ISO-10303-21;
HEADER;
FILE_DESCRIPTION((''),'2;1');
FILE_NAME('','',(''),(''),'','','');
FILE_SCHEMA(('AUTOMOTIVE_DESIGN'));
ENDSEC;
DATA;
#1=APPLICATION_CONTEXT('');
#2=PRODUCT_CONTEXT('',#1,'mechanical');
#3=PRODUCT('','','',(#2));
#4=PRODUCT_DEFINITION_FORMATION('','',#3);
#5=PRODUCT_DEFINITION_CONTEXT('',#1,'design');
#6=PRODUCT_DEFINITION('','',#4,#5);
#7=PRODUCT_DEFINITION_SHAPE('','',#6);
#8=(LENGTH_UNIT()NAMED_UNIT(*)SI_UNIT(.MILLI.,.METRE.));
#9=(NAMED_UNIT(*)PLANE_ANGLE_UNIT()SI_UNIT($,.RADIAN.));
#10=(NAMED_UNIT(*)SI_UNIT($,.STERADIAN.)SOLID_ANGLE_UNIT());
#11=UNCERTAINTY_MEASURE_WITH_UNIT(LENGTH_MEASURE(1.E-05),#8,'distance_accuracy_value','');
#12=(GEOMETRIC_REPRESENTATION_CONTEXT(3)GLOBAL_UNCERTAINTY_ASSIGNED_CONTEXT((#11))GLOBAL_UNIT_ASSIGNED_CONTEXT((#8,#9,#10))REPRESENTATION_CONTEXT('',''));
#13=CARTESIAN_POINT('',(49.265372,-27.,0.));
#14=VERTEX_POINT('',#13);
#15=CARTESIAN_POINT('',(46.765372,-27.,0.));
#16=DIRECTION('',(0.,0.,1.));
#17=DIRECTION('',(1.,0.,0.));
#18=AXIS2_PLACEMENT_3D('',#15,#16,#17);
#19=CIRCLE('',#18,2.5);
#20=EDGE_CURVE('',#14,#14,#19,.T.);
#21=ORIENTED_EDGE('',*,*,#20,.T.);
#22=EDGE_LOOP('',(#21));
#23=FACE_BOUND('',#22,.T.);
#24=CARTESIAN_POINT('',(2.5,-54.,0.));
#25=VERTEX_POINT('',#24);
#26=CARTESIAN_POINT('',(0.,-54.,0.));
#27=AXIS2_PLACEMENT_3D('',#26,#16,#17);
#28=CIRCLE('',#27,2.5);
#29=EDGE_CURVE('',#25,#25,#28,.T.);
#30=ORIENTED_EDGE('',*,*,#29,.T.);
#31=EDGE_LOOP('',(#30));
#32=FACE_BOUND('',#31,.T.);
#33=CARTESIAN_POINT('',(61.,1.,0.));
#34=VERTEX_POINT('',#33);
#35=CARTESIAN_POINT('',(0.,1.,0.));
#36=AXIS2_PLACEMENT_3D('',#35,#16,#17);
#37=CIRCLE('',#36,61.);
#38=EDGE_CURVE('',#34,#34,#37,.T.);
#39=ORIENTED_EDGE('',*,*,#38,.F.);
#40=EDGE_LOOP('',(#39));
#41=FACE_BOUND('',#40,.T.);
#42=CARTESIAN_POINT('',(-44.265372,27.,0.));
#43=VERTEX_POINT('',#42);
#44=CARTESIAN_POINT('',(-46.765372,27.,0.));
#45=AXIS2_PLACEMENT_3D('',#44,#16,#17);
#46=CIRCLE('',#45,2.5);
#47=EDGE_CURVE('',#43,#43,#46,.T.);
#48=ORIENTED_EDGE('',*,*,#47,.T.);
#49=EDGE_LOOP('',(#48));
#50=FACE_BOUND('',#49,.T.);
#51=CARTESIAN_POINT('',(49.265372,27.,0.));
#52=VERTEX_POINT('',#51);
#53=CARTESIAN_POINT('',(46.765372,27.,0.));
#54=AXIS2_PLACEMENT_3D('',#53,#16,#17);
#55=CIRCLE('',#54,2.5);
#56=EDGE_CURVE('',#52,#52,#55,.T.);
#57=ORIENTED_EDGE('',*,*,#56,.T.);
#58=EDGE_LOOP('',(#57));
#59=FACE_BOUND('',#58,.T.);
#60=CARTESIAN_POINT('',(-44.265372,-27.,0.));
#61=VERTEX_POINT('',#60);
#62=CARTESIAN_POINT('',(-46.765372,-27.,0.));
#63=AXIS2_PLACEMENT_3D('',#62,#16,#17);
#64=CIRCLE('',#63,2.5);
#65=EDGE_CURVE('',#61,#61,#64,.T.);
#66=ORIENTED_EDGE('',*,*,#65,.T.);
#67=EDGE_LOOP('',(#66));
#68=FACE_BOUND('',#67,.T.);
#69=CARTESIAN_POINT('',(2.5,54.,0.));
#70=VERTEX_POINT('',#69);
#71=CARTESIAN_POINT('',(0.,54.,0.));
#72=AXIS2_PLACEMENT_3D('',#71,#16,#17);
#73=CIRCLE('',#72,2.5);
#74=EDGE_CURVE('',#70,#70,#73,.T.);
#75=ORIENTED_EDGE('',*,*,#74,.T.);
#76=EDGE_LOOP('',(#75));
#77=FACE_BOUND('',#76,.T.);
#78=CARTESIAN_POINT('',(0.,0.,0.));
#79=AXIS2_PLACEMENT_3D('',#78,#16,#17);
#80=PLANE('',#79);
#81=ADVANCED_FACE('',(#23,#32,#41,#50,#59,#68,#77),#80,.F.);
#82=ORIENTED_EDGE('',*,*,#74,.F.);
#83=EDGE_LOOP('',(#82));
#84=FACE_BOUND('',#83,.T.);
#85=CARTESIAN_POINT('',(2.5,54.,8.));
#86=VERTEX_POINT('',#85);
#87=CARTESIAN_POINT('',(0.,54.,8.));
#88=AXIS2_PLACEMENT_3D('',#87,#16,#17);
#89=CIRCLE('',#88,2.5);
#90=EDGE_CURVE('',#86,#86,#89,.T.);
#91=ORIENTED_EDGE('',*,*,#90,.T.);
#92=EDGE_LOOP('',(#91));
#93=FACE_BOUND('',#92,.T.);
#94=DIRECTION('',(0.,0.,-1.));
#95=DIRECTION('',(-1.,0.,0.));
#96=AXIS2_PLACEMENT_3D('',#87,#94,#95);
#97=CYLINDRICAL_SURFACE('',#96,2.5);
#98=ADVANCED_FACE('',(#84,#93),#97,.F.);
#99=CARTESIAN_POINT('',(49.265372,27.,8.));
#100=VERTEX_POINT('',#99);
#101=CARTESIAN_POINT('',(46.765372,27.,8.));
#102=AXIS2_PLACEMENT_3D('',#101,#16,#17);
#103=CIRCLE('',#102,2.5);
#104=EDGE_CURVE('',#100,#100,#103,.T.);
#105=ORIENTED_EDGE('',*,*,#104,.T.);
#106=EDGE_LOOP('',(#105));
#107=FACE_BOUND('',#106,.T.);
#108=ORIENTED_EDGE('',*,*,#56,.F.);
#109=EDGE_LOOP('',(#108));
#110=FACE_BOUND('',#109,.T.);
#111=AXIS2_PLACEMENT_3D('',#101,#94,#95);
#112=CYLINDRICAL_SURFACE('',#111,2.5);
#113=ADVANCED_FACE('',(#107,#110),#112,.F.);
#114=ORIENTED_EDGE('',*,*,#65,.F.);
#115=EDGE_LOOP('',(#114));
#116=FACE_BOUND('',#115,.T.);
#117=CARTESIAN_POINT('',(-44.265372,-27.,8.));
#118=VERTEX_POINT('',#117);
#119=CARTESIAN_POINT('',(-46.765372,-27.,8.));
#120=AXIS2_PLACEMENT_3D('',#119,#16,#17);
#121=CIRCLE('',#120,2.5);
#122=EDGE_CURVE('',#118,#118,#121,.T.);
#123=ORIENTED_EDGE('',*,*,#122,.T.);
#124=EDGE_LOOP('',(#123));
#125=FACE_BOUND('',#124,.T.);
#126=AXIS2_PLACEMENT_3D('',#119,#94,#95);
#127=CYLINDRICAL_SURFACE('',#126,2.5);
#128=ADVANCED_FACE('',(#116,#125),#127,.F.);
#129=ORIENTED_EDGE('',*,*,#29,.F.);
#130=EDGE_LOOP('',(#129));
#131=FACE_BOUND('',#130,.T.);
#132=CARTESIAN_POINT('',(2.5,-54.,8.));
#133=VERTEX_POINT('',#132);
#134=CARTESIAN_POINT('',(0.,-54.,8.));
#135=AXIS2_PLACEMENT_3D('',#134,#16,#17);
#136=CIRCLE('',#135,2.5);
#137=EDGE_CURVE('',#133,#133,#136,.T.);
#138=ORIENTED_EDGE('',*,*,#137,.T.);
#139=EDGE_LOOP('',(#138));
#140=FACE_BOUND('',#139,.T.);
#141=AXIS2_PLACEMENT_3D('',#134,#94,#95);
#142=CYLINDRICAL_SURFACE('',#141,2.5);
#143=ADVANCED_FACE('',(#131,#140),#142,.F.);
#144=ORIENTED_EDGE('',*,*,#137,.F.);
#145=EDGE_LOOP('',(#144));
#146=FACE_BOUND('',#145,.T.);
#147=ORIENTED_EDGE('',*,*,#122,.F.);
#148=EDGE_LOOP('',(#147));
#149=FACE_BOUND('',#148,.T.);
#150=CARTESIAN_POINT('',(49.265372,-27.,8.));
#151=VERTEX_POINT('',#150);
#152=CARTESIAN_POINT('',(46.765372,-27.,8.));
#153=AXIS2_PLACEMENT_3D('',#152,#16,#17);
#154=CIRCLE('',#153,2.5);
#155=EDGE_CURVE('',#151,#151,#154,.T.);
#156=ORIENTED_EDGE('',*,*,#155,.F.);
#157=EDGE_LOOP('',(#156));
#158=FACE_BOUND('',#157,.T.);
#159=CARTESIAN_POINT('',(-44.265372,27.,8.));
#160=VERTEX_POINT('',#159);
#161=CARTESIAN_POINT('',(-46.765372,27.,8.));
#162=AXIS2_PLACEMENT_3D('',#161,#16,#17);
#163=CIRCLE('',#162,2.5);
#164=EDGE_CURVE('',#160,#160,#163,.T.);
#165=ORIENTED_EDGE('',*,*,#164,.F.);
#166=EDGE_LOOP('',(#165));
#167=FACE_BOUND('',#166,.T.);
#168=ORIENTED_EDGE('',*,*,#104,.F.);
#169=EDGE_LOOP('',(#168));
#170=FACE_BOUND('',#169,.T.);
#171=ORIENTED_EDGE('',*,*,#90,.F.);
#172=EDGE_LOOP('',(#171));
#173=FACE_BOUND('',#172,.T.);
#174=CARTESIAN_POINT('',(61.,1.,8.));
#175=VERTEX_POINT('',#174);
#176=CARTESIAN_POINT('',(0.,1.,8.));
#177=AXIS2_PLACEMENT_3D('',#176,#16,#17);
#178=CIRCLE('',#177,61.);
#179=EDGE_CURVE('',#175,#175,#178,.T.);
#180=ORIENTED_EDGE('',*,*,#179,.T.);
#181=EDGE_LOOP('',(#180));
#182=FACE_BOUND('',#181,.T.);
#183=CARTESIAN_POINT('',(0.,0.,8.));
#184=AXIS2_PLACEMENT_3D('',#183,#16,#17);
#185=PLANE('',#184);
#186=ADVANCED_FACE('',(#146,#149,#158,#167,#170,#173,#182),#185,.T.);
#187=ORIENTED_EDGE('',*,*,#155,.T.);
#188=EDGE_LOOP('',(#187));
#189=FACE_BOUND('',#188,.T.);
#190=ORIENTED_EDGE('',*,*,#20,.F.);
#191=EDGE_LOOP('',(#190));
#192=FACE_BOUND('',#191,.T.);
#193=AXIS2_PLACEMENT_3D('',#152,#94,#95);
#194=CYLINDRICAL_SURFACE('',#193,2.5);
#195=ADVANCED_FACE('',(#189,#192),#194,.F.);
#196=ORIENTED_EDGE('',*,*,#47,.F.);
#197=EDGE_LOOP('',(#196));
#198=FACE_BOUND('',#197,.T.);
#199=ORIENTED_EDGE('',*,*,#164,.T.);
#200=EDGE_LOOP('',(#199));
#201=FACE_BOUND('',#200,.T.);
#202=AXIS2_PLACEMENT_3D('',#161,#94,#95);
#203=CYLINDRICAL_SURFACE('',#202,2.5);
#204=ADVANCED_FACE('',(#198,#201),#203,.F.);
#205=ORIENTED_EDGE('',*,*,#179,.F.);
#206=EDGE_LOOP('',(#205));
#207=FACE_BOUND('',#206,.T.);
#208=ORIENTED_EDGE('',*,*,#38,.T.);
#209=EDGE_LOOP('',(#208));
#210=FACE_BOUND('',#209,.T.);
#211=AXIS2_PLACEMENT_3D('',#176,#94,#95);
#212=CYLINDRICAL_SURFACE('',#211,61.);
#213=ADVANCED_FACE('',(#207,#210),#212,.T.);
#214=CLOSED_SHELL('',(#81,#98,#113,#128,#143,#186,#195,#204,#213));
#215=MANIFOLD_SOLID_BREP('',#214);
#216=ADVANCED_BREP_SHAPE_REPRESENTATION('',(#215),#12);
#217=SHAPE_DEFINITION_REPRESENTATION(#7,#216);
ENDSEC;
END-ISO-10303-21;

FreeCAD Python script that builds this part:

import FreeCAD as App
import Part
import Sketcher

V = App.Vector
Q = App.Units.Quantity

doc = App.newDocument("Part")
body = doc.addObject("PartDesign::Body", "Body")

# Sketch on XY plane
sketch1 = body.newObject("Sketcher::SketchObject", "Sketch")
sketch1.AttachmentSupport = (doc.getObject("XY_Plane"), [""])
sketch1.MapMode = "FlatFace"
sketch1.addGeometry([
    Part.Circle(V(0, 1, 0), V(0, 0, 1), 61),  # 0
    Part.Circle(V(-46.765372, -27, 0), V(0, 0, 1), 2.5),  # 1
    Part.Circle(V(0, -54, 0), V(0, 0, 1), 2.5),  # 2
    Part.Circle(V(46.765372, -27, 0), V(0, 0, 1), 2.5),  # 3
    Part.Circle(V(-46.765372, 27, 0), V(0, 0, 1), 2.5),  # 4
    Part.Circle(V(0, 54, 0), V(0, 0, 1), 2.5),  # 5
    Part.Circle(V(46.765372, 27, 0), V(0, 0, 1), 2.5),  # 6
], False)
sketch1.addConstraint([
    Sketcher.Constraint("Equal", 1, 2),
    Sketcher.Constraint("Equal", 2, 3),
    Sketcher.Constraint("Equal", 3, 4),
    Sketcher.Constraint("Equal", 4, 5),
    Sketcher.Constraint("Equal", 5, 6),
    Sketcher.Constraint("Symmetric", 3, 3, 4, 3, -1, 1),
    Sketcher.Constraint("Symmetric", 2, 3, 5, 3, -1, 1),
    Sketcher.Constraint("Symmetric", 1, 3, 6, 3, -1, 1),
    Sketcher.Constraint("Symmetric", 1, 3, 3, 3, -2),
    Sketcher.Constraint("PointOnObject", 0, 3, -2),
    Sketcher.Constraint("PointOnObject", 2, 3, -2),
    Sketcher.Constraint("Diameter", 0, Q("122 mm")),
    Sketcher.Constraint("Diameter", 1, Q("5 mm")),
    Sketcher.Constraint("DistanceY", -1, 1, 0, 3, Q("1 mm")),
    Sketcher.Constraint("DistanceY", 1, 3, -1, 1, Q("27 mm")),
    Sketcher.Constraint("DistanceY", 2, 3, -1, 1, Q("54 mm")),
    Sketcher.Constraint("DistanceX", 1, 3, -1, 1, Q("46.765372 mm")),
])
pad1 = body.newObject("PartDesign::Pad", "Pad")
pad1.Profile = sketch1
pad1.Length = 8

doc.recompute()
